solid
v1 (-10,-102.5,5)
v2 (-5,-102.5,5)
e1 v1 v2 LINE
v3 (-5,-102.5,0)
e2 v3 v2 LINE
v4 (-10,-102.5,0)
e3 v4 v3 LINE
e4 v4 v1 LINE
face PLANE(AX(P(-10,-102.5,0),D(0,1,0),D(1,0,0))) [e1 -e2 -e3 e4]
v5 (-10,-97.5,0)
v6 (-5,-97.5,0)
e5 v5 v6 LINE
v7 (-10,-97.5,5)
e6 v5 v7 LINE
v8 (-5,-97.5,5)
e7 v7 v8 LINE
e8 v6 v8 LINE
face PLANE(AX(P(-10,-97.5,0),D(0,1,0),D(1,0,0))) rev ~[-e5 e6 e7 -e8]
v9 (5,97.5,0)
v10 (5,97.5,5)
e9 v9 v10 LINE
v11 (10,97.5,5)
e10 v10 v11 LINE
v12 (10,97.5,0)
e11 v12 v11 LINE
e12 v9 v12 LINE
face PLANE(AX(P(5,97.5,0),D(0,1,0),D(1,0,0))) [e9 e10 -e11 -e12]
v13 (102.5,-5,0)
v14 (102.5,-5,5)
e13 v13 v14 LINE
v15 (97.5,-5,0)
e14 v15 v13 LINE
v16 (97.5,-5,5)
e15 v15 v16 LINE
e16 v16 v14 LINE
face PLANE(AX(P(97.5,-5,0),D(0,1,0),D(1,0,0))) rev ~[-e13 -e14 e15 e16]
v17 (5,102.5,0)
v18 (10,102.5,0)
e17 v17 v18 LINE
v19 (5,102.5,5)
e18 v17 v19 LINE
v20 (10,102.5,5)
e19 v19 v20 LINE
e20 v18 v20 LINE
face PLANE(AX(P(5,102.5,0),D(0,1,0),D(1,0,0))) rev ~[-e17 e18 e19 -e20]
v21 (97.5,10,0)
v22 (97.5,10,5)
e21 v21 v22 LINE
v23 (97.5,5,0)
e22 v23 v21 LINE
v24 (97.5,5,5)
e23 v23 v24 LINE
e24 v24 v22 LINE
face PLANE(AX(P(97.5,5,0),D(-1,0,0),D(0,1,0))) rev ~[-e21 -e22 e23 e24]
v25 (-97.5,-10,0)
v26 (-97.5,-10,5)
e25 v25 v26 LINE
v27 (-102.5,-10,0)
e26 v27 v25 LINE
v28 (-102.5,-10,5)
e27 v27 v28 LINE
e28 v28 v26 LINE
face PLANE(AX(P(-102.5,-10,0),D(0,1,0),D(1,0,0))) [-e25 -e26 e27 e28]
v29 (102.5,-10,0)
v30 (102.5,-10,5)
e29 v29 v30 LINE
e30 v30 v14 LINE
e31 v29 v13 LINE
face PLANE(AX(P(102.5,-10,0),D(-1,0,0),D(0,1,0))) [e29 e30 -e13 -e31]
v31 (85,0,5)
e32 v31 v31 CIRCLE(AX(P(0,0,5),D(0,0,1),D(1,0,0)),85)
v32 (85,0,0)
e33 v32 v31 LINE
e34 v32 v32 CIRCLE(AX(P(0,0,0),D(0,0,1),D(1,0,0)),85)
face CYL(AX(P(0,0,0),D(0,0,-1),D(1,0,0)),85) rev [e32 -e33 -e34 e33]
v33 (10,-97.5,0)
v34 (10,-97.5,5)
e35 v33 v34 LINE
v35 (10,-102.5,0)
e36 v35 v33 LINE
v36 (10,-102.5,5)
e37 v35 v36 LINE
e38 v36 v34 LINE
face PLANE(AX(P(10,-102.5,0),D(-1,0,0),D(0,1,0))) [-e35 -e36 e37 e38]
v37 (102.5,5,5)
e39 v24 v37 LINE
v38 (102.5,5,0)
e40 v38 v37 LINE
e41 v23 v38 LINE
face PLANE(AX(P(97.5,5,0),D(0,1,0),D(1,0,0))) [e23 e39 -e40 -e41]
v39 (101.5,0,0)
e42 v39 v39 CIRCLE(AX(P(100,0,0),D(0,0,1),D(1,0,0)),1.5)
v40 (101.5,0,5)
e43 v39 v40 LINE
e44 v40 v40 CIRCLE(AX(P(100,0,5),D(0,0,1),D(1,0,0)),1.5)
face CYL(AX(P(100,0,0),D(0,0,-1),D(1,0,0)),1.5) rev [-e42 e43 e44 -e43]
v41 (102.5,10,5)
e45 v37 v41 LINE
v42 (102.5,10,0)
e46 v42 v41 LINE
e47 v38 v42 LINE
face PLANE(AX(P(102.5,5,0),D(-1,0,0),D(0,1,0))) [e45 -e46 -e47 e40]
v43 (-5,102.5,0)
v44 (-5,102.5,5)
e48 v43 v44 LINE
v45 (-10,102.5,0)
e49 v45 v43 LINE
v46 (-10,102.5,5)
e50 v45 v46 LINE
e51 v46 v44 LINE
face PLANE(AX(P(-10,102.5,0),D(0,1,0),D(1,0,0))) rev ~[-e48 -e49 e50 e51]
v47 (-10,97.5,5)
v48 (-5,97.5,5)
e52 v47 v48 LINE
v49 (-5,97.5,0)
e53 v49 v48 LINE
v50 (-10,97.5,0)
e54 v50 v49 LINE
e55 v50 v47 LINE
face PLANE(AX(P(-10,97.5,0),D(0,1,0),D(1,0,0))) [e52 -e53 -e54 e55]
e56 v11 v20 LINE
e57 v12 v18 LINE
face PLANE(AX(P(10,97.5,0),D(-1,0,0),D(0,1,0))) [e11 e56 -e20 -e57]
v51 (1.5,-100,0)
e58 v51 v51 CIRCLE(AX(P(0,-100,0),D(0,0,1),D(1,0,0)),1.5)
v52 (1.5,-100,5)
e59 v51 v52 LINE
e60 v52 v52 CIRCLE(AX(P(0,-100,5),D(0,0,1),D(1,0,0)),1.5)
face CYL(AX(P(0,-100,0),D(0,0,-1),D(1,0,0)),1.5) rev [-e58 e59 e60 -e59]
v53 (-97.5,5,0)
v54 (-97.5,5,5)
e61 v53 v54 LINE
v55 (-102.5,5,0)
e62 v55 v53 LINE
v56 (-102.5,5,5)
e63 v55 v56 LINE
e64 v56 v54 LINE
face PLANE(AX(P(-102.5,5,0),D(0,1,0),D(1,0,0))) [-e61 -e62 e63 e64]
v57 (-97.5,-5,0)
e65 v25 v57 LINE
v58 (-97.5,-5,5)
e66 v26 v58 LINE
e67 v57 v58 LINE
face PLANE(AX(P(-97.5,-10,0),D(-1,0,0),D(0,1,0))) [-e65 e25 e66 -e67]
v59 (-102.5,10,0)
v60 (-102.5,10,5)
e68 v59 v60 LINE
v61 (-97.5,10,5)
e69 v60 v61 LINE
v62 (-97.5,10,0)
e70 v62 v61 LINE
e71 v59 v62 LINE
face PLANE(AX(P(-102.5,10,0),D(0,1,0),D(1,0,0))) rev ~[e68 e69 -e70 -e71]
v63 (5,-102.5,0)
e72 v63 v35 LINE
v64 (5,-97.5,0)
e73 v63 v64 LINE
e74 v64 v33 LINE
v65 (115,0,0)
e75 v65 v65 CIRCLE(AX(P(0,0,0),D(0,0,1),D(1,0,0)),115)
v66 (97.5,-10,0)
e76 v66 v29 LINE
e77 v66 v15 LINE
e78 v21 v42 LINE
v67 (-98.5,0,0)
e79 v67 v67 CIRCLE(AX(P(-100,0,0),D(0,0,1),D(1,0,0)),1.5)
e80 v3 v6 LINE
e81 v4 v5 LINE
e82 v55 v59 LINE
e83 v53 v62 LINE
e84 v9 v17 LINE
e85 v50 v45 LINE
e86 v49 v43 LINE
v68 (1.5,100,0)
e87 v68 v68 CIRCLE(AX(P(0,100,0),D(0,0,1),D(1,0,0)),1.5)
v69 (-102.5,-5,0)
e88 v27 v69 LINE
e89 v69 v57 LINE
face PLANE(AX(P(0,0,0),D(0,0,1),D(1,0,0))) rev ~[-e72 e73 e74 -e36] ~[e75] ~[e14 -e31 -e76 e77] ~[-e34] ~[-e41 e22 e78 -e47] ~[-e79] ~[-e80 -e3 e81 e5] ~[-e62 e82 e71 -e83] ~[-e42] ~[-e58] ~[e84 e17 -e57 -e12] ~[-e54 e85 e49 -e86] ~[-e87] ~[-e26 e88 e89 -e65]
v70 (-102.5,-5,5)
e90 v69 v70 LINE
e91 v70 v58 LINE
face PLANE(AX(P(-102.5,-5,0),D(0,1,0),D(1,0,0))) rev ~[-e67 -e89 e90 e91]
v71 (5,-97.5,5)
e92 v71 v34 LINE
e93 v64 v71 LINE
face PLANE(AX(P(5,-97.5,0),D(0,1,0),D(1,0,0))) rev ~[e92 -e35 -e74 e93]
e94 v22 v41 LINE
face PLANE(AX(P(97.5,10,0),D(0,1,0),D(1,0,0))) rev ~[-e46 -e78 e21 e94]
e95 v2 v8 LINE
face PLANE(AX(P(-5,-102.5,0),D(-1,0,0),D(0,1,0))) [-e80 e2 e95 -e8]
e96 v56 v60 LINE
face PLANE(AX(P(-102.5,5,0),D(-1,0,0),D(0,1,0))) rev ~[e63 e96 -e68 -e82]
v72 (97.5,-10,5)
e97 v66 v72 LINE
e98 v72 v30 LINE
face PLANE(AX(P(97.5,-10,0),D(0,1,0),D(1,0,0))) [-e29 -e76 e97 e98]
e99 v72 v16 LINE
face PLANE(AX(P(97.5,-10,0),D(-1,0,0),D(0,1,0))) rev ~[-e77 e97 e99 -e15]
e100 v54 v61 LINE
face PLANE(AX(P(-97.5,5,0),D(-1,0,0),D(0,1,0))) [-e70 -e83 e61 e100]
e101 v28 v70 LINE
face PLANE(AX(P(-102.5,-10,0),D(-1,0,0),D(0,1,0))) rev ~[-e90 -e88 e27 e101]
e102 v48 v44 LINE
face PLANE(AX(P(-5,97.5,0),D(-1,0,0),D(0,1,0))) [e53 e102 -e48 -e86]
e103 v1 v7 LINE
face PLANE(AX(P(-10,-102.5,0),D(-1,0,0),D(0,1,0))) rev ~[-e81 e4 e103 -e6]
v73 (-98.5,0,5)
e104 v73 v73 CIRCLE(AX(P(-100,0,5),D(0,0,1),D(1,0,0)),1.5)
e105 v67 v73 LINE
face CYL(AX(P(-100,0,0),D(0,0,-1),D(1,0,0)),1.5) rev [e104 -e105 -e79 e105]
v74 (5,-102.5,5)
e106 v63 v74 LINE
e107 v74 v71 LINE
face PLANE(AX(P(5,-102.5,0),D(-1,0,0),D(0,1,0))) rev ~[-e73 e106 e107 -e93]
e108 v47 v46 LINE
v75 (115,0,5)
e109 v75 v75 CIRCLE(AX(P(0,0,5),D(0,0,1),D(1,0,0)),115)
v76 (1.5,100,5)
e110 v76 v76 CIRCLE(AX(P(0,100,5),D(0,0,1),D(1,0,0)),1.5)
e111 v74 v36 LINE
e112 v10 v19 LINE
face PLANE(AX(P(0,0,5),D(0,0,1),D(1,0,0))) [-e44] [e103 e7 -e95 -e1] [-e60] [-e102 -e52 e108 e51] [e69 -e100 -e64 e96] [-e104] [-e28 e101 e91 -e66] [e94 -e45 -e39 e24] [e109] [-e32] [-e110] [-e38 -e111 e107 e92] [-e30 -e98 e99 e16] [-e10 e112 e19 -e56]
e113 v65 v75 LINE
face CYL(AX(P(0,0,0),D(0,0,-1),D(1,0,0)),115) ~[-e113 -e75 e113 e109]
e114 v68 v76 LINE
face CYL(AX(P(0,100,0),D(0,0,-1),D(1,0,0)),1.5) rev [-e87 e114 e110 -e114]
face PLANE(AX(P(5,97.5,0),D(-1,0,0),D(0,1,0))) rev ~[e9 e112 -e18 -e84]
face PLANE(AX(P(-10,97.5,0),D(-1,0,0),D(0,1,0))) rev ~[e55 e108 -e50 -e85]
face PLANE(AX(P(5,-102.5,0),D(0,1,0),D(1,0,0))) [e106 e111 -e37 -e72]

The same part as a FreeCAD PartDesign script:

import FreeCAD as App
import Part
import Sketcher
from FreeCAD import Vector


def add_polygon(sketch, points):
    """Adds a closed chain of lines whose ends are joined by coincident constraints."""
    first, n = sketch.GeometryCount, len(points)
    for a, b in zip(points, points[1:] + points[:1]):
        sketch.addGeometry(Part.LineSegment(App.Vector(*a, 0), App.Vector(*b, 0)), False)
    for i in range(n):
        sketch.addConstraint(Sketcher.Constraint("Coincident", first + i, 2, first + (i + 1) % n, 1))

doc = App.newDocument("Part")
body = doc.addObject("PartDesign::Body", "Body")

# Sketch on XY plane
sketch1 = doc.addObject("Sketcher::SketchObject", "Sketch")
body.addObject(sketch1)
sketch1.AttachmentSupport = (doc.XY_Plane, [""])
sketch1.MapMode = "FlatFace"
sketch1.addGeometry(Part.Circle(Vector(0, 0, 0), Vector(0, 0, 1), 115), False)  # 0
add_polygon(sketch1, [(-5, -102.5), (-10, -102.5), (-10, -97.5), (-5, -97.5)])  # lines 1-4
add_polygon(sketch1, [(-97.5, -10), (-102.5, -10), (-102.5, -5), (-97.5, -5)])  # lines 5-8
sketch1.addGeometry(Part.Circle(Vector(0, -100, 0), Vector(0, 0, 1), 1.5), False)  # 9
add_polygon(sketch1, [(10, -102.5), (5, -102.5), (5, -97.5), (10, -97.5)])  # lines 10-13
add_polygon(sketch1, [(102.5, -10), (97.5, -10), (97.5, -5), (102.5, -5)])  # lines 14-17
sketch1.addGeometry(Part.Circle(Vector(-100, 0, 0), Vector(0, 0, 1), 1.5), False)  # 18
add_polygon(sketch1, [(-97.5, 5), (-102.5, 5), (-102.5, 10), (-97.5, 10)])  # lines 19-22
add_polygon(sketch1, [(-5, 97.5), (-10, 97.5), (-10, 102.5), (-5, 102.5)])  # lines 23-26
sketch1.addGeometry(Part.Circle(Vector(0, 0, 0), Vector(0, 0, 1), 85), False)  # 27
sketch1.addGeometry(Part.Circle(Vector(100, 0, 0), Vector(0, 0, 1), 1.5), False)  # 28
add_polygon(sketch1, [(102.5, 5), (97.5, 5), (97.5, 10), (102.5, 10)])  # lines 29-32
sketch1.addGeometry(Part.Circle(Vector(0, 100, 0), Vector(0, 0, 1), 1.5), False)  # 33
add_polygon(sketch1, [(10, 97.5), (5, 97.5), (5, 102.5), (10, 102.5)])  # lines 34-37
sketch1.addConstraint([
    Sketcher.Constraint("Horizontal", 1),
    Sketcher.Constraint("Vertical", 2),
    Sketcher.Constraint("Horizontal", 3),
    Sketcher.Constraint("Vertical", 4),
    Sketcher.Constraint("Horizontal", 5),
    Sketcher.Constraint("Vertical", 6),
    Sketcher.Constraint("Horizontal", 7),
    Sketcher.Constraint("Vertical", 8),
    Sketcher.Constraint("Horizontal", 10),
    Sketcher.Constraint("Vertical", 11),
    Sketcher.Constraint("Horizontal", 12),
    Sketcher.Constraint("Vertical", 13),
    Sketcher.Constraint("Horizontal", 14),
    Sketcher.Constraint("Vertical", 15),
    Sketcher.Constraint("Horizontal", 16),
    Sketcher.Constraint("Vertical", 17),
    Sketcher.Constraint("Horizontal", 19),
    Sketcher.Constraint("Vertical", 20),
    Sketcher.Constraint("Horizontal", 21),
    Sketcher.Constraint("Vertical", 22),
    Sketcher.Constraint("Horizontal", 23),
    Sketcher.Constraint("Vertical", 24),
    Sketcher.Constraint("Horizontal", 25),
    Sketcher.Constraint("Vertical", 26),
    Sketcher.Constraint("Horizontal", 29),
    Sketcher.Constraint("Vertical", 30),
    Sketcher.Constraint("Horizontal", 31),
    Sketcher.Constraint("Vertical", 32),
    Sketcher.Constraint("Horizontal", 34),
    Sketcher.Constraint("Vertical", 35),
    Sketcher.Constraint("Horizontal", 36),
    Sketcher.Constraint("Vertical", 37),
    Sketcher.Constraint("Coincident", 0, 3, -1, 1),
    Sketcher.Constraint("Coincident", 27, 3, -1, 1),
    Sketcher.Constraint("Equal", 9, 18),
    Sketcher.Constraint("Equal", 18, 28),
    Sketcher.Constraint("Equal", 28, 33),
    Sketcher.Constraint("Symmetric", 18, 3, 28, 3, -1, 1),
    Sketcher.Constraint("Symmetric", 9, 3, 33, 3, -1, 1),
    Sketcher.Constraint("Symmetric", 16, 2, 19, 2, -1, 1),
    Sketcher.Constraint("Symmetric", 14, 2, 21, 2, -1, 1),
    Sketcher.Constraint("Symmetric", 12, 2, 23, 2, -1, 1),
    Sketcher.Constraint("Symmetric", 10, 2, 25, 2, -1, 1),
    Sketcher.Constraint("Symmetric", 7, 2, 29, 2, -1, 1),
    Sketcher.Constraint("Symmetric", 5, 2, 31, 2, -1, 1),
    Sketcher.Constraint("Symmetric", 3, 2, 34, 2, -1, 1),
    Sketcher.Constraint("Symmetric", 1, 2, 36, 2, -1, 1),
    Sketcher.Constraint("Symmetric", 4, 2, 10, 2, -2),
    Sketcher.Constraint("Symmetric", 2, 2, 12, 2, -2),
    Sketcher.Constraint("Symmetric", 8, 2, 14, 2, -2),
    Sketcher.Constraint("Symmetric", 6, 2, 16, 2, -2),
    Sketcher.Constraint("PointOnObject", 9, 3, -2),
    Sketcher.Constraint("PointOnObject", 18, 3, -1),
    Sketcher.Constraint("Equal", 3, 5),
    Sketcher.Constraint("Equal", 36, 2),
    Sketcher.Constraint("Equal", 4, 6),
    Sketcher.Constraint("Diameter", 0, 230.0),
    Sketcher.Constraint("Diameter", 9, 3.0),
    Sketcher.Constraint("Diameter", 27, 170.0),
    Sketcher.Constraint("DistanceX", 1, 2, 1, 1, 5.0),
    Sketcher.Constraint("DistanceY", 9, 3, -1, 1, 100.0),
    Sketcher.Constraint("DistanceX", 18, 3, -1, 1, 100.0),
    Sketcher.Constraint("DistanceX", 1, 2, -1, 1, 10.0),
    Sketcher.Constraint("DistanceY", 5, 2, -1, 1, 10.0),
    Sketcher.Constraint("DistanceY", 1, 2, -1, 1, 102.5),
    Sketcher.Constraint("DistanceX", 5, 2, -1, 1, 102.5),
])
pad1 = doc.addObject("PartDesign::Pad", "Pad")
body.addObject(pad1)
pad1.Profile = sketch1
pad1.Length = 5

doc.recompute()
